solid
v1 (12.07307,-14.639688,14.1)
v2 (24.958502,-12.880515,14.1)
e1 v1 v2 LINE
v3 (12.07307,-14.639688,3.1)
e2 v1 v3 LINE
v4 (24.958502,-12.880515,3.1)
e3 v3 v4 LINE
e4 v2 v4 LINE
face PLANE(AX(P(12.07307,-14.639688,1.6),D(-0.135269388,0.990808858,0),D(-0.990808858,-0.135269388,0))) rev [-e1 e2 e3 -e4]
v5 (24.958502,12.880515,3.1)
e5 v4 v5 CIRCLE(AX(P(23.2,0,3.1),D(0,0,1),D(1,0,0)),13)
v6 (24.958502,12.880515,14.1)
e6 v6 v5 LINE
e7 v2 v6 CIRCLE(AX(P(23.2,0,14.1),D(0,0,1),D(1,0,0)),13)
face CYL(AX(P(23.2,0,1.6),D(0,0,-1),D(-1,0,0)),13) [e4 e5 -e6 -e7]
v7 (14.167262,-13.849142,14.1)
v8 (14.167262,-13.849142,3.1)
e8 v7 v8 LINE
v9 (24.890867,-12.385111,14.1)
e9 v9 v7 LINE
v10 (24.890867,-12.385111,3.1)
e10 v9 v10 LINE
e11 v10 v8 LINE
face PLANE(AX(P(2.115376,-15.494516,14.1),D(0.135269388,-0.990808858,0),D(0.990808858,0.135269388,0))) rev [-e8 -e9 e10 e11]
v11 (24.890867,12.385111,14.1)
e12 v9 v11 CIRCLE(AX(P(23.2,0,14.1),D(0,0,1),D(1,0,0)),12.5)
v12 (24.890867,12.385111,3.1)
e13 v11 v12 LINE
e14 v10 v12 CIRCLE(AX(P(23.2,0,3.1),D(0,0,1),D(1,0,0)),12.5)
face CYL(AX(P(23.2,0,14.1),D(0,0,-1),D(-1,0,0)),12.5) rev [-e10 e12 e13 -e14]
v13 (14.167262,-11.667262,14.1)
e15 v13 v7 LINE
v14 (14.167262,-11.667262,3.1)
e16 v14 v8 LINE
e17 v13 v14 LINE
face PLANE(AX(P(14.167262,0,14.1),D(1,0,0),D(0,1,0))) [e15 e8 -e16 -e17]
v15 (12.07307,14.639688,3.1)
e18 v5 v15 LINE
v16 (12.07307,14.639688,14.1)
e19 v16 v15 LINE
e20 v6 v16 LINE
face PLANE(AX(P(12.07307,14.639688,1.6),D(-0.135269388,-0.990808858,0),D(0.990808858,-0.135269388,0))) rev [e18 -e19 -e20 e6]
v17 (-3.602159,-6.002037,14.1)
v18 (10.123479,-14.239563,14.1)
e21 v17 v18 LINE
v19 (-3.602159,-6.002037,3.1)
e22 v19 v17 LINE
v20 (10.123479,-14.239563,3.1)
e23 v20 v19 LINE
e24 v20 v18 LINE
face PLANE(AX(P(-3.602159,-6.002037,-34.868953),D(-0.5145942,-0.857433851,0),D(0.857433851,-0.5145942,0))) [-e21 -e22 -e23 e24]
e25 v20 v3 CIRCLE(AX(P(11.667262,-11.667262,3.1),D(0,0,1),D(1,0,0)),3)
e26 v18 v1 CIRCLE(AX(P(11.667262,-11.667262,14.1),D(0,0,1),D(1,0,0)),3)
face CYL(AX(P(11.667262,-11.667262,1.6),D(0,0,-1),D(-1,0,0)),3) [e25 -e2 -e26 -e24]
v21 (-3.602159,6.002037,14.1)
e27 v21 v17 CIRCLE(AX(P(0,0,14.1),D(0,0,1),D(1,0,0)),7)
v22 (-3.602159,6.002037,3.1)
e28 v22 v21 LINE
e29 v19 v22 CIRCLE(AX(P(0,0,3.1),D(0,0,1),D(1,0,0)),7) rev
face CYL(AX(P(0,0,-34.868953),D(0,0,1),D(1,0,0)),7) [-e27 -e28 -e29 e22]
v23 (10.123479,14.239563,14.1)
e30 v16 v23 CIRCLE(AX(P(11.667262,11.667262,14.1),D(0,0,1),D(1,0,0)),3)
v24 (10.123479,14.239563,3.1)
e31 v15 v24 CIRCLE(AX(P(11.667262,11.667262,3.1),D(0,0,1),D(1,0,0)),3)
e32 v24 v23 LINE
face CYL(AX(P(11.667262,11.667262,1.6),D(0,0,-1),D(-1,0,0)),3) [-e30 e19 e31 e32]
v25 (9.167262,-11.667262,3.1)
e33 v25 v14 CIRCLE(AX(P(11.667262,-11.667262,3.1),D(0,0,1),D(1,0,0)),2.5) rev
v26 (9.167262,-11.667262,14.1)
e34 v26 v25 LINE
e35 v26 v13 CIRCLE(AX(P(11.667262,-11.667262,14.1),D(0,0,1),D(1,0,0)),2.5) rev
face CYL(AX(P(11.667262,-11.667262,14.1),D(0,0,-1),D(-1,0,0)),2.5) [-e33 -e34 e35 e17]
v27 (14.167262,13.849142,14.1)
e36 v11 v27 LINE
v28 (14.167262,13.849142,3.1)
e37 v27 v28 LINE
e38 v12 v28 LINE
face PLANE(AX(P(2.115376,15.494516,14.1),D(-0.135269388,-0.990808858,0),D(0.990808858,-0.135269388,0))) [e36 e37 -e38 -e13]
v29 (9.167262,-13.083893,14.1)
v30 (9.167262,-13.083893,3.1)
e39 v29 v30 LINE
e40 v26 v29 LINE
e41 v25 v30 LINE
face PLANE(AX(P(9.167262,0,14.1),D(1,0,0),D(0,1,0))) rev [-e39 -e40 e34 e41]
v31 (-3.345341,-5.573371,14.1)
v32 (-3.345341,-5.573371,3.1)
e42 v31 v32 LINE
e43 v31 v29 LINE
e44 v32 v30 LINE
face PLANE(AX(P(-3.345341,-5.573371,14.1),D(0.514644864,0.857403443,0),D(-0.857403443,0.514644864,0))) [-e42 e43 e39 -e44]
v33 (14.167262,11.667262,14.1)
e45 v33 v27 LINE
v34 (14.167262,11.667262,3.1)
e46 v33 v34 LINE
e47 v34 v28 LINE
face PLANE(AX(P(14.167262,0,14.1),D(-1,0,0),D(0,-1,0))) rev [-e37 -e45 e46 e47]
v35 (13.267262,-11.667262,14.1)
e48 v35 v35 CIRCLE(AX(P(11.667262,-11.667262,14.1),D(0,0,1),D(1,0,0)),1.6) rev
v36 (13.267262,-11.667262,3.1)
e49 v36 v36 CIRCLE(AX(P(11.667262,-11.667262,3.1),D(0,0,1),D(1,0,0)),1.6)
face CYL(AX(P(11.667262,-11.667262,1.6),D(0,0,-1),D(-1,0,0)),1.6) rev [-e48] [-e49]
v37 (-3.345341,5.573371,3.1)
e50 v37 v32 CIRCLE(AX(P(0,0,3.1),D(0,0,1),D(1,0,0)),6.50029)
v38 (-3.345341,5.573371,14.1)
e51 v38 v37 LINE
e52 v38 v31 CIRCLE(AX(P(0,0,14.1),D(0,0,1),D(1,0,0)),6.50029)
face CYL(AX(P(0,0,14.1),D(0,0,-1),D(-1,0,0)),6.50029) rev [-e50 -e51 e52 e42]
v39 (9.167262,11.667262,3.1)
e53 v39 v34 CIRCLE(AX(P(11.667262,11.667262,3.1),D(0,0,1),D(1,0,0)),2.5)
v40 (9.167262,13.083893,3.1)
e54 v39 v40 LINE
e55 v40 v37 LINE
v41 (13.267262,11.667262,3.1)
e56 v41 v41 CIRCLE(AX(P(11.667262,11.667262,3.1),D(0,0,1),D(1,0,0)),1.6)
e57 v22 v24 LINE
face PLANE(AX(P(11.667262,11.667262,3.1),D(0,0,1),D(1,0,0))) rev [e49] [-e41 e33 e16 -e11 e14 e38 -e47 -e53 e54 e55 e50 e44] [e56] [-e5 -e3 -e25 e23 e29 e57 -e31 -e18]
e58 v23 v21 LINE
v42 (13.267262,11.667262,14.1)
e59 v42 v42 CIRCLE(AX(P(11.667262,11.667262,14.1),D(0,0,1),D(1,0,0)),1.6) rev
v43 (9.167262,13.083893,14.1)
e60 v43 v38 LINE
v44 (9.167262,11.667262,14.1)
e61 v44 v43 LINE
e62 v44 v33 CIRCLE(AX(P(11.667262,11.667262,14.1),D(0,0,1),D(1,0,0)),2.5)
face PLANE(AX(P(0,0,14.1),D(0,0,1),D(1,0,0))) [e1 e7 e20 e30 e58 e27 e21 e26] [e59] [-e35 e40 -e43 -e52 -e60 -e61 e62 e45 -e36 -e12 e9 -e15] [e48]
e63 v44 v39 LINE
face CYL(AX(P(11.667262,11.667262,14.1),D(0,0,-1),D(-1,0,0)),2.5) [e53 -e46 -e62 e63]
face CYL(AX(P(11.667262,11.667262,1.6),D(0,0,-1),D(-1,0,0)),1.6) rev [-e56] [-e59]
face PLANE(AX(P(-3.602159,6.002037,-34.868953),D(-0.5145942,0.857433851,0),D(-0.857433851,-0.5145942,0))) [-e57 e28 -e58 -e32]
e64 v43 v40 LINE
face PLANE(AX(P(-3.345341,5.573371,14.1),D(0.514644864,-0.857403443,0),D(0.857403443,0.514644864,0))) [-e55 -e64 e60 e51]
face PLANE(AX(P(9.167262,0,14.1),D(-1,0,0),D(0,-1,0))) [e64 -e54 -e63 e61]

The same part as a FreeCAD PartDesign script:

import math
import FreeCAD as App
import Part
import Sketcher
from FreeCAD import Vector

doc = App.newDocument("Part")
body = doc.addObject("PartDesign::Body", "Body")

# Sketch on XY plane
sketch1 = body.newObject("Sketcher::SketchObject", "Sketch")
sketch1.AttachmentSupport = (doc.getObject("XY_Plane"), [""])
sketch1.MapMode = "FlatFace"
sketch1.addGeometry([
    Part.LineSegment(Vector(24.96, 12.88, 0), Vector(12.07, 14.64, 0)),  # 0
    Part.ArcOfCircle(Part.Circle(Vector(11.67, 11.67, 0), Vector(0, 0, 1), 3), math.radians(82.23), math.radians(90)),  # 1
    Part.LineSegment(Vector(11.67, 14.67, 0), Vector(-11.67, 14.67, 0)),  # 2
    Part.ArcOfCircle(Part.Circle(Vector(-11.67, 11.67, 0), Vector(0, 0, 1), 3), math.radians(90), math.radians(155)),  # 3
    Part.LineSegment(Vector(-14.4, 12.91, 0), Vector(-19.73, 1.25, 0)),  # 4
    Part.ArcOfCircle(Part.Circle(Vector(-17, 0, 0), Vector(0, 0, 1), 3), math.radians(155), math.radians(236)),  # 5
    Part.LineSegment(Vector(-18.7, -2.47, 0), Vector(-1.7, -14.14, 0)),  # 6
    Part.ArcOfCircle(Part.Circle(Vector(0, -11.67, 0), Vector(0, 0, 1), 3), math.radians(-124), math.radians(-90)),  # 7
    Part.LineSegment(Vector(0, -14.67, 0), Vector(11.67, -14.67, 0)),  # 8
    Part.ArcOfCircle(Part.Circle(Vector(11.67, -11.67, 0), Vector(0, 0, 1), 3), math.radians(-90), math.radians(-82.23)),  # 9
    Part.LineSegment(Vector(12.07, -14.64, 0), Vector(24.96, -12.88, 0)),  # 10
    Part.ArcOfCircle(Part.Circle(Vector(23.2, 0, 0), Vector(0, 0, 1), 13), math.radians(-82), math.radians(82)),  # 11
    Part.Circle(Vector(11.67, -11.67, 0), Vector(0, 0, 1), 1.6),  # 12
    Part.Circle(Vector(0, -11.67, 0), Vector(0, 0, 1), 1.6),  # 13
    Part.Circle(Vector(23.2, 0, 0), Vector(0, 0, 1), 4.5),  # 14
    Part.Circle(Vector(8.6, 0, 0), Vector(0, 0, 1), 3),  # 15
    Part.Circle(Vector(11.67, 11.67, 0), Vector(0, 0, 1), 1.6),  # 16
    Part.Circle(Vector(0, 0, 0), Vector(0, 0, 1), 3),  # 17
    Part.Circle(Vector(-17, 0, 0), Vector(0, 0, 1), 1.6),  # 18
    Part.Circle(Vector(0, 11.67, 0), Vector(0, 0, 1), 1.6),  # 19
    Part.Circle(Vector(-11.67, 11.67, 0), Vector(0, 0, 1), 1.6),  # 20
], False)
sketch1.addConstraint([
    Sketcher.Constraint("Tangent", 0, 2, 1, 1),
    Sketcher.Constraint("Tangent", 1, 2, 2, 1),
    Sketcher.Constraint("Tangent", 2, 2, 3, 1),
    Sketcher.Constraint("Tangent", 3, 2, 4, 1),
    Sketcher.Constraint("Tangent", 4, 2, 5, 1),
    Sketcher.Constraint("Tangent", 5, 2, 6, 1),
    Sketcher.Constraint("Tangent", 6, 2, 7, 1),
    Sketcher.Constraint("Tangent", 7, 2, 8, 1),
    Sketcher.Constraint("Tangent", 8, 2, 9, 1),
    Sketcher.Constraint("Tangent", 9, 2, 10, 1),
    Sketcher.Constraint("Tangent", 10, 2, 11, 1),
    Sketcher.Constraint("Tangent", 11, 2, 0, 1),
    Sketcher.Constraint("Horizontal", 2),
    Sketcher.Constraint("Horizontal", 8),
    Sketcher.Constraint("Coincident", 17, 3, -1, 1),
    Sketcher.Constraint("Coincident", 12, 3, 9, 3),
    Sketcher.Constraint("Coincident", 13, 3, 7, 3),
    Sketcher.Constraint("Coincident", 14, 3, 11, 3),
    Sketcher.Constraint("Coincident", 16, 3, 1, 3),
    Sketcher.Constraint("Coincident", 18, 3, 5, 3),
    Sketcher.Constraint("Coincident", 20, 3, 3, 3),
    Sketcher.Constraint("Equal", 1, 3),
    Sketcher.Constraint("Equal", 3, 5),
    Sketcher.Constraint("Equal", 5, 7),
    Sketcher.Constraint("Equal", 7, 9),
    Sketcher.Constraint("Equal", 12, 13),
    Sketcher.Constraint("Equal", 9, 15),
    Sketcher.Constraint("Equal", 13, 16),
    Sketcher.Constraint("Equal", 15, 17),
    Sketcher.Constraint("Equal", 16, 18),
    Sketcher.Constraint("Equal", 18, 19),
    Sketcher.Constraint("Equal", 19, 20),
    Sketcher.Constraint("Symmetric", 3, 3, 9, 3, -1, 1),
    Sketcher.Constraint("Symmetric", 7, 3, 19, 3, -1, 1),
    Sketcher.Constraint("Symmetric", 0, 2, 9, 2, -1),
    Sketcher.Constraint("PointOnObject", 5, 3, -1),
    Sketcher.Constraint("PointOnObject", 7, 3, -2),
    Sketcher.Constraint("PointOnObject", 15, 3, -1),
    Sketcher.Constraint("Diameter", 14, 9.0),
    Sketcher.Constraint("Diameter", 15, 6.0),
    Sketcher.Constraint("Radius", 11, 13.0),
    Sketcher.Constraint("Diameter", 12, 3.2),
    Sketcher.Constraint("DistanceX", 5, 3, -1, 1, 17.0),
    Sketcher.Constraint("DistanceX", -1, 1, 11, 3, 23.2),
    Sketcher.Constraint("DistanceX", -1, 1, 15, 3, 8.6),
    Sketcher.Constraint("DistanceX", 8, 1, 8, 2, 11.667262),
    Sketcher.Constraint("DistanceX", 4, 2, -1, 1, 19.7285),
])
pad1 = body.newObject("PartDesign::Pad", "Pad")
pad1.Profile = sketch1
pad1.Length = 1.6

# Sketch on XY plane
sketch2 = body.newObject("Sketcher::SketchObject", "Sketch001")
sketch2.AttachmentSupport = (doc.getObject("XY_Plane"), [""])
sketch2.MapMode = "FlatFace"
sketch2.AttachmentOffset = App.Placement(Vector(0, 0, 1.6), App.Rotation())
sketch2.addGeometry([
    Part.LineSegment(Vector(25, 12.9, 0), Vector(12.1, 14.6, 0)),  # 0
    Part.ArcOfCircle(Part.Circle(Vector(11.7, 11.7, 0), Vector(0, 0, 1), 3), math.radians(82), math.radians(128)),  # 1
    Part.LineSegment(Vector(9.8, 14, 0), Vector(-3.1, 3.9, 0)),  # 2
    Part.ArcOfCircle(Part.Circle(Vector(0, 0, 0), Vector(0, 0, 1), 5), math.radians(128), math.radians(232)),  # 3
    Part.LineSegment(Vector(-3.1, -3.9, 0), Vector(9.8, -14, 0)),  # 4
    Part.ArcOfCircle(Part.Circle(Vector(11.7, -11.7, 0), Vector(0, 0, 1), 3), math.radians(-128), math.radians(-82)),  # 5
    Part.LineSegment(Vector(12.1, -14.6, 0), Vector(25, -12.9, 0)),  # 6
    Part.ArcOfCircle(Part.Circle(Vector(23.2, 0, 0), Vector(0, 0, 1), 13), math.radians(-82), math.radians(82)),  # 7
    Part.Circle(Vector(11.7, -11.7, 0), Vector(0, 0, 1), 1.6),  # 8
    Part.Circle(Vector(23.2, 0, 0), Vector(0, 0, 1), 4.5),  # 9
    Part.Circle(Vector(8.6, 0, 0), Vector(0, 0, 1), 3),  # 10
    Part.Circle(Vector(0, 0, 0), Vector(0, 0, 1), 3),  # 11
    Part.Circle(Vector(11.7, 11.7, 0), Vector(0, 0, 1), 1.6),  # 12
], False)
sketch2.addConstraint([
    Sketcher.Constraint("Tangent", 0, 2, 1, 1),
    Sketcher.Constraint("Tangent", 1, 2, 2, 1),
    Sketcher.Constraint("Tangent", 2, 2, 3, 1),
    Sketcher.Constraint("Tangent", 3, 2, 4, 1),
    Sketcher.Constraint("Tangent", 4, 2, 5, 1),
    Sketcher.Constraint("Tangent", 5, 2, 6, 1),
    Sketcher.Constraint("Tangent", 6, 2, 7, 1),
    Sketcher.Constraint("Tangent", 7, 2, 0, 1),
    Sketcher.Constraint("Coincident", 3, 3, -1, 1),
    Sketcher.Constraint("Coincident", 11, 3, -1, 1),
    Sketcher.Constraint("Coincident", 8, 3, 5, 3),
    Sketcher.Constraint("Coincident", 9, 3, 7, 3),
    Sketcher.Constraint("Coincident", 12, 3, 1, 3),
    Sketcher.Constraint("Equal", 1, 5),
    Sketcher.Constraint("Equal", 5, 10),
    Sketcher.Constraint("Equal", 10, 11),
    Sketcher.Constraint("Equal", 8, 12),
    Sketcher.Constraint("Symmetric", 1, 3, 5, 3, -1),
    Sketcher.Constraint("PointOnObject", 7, 3, -1),
    Sketcher.Constraint("PointOnObject", 10, 3, -1),
    Sketcher.Constraint("Diameter", 9, 9.0),
    Sketcher.Constraint("Diameter", 10, 6.0),
    Sketcher.Constraint("Radius", 3, 5.0),
    Sketcher.Constraint("Radius", 7, 13.0),
    Sketcher.Constraint("Diameter", 8, 3.2),
    Sketcher.Constraint("DistanceX", -1, 1, 7, 3, 23.2),
    Sketcher.Constraint("DistanceX", -1, 1, 10, 3, 8.6),
    Sketcher.Constraint("Distance", 2, 16.378339),
    Sketcher.Constraint("DistanceX", -1, 1, 1, 3, 11.667262),
])
pad2 = body.newObject("PartDesign::Pad", "Pad001")
pad2.Profile = sketch2
pad2.Length = 1.5

# Sketch on XY plane
sketch3 = body.newObject("Sketcher::SketchObject", "Sketch002")
sketch3.AttachmentSupport = (doc.getObject("XY_Plane"), [""])
sketch3.MapMode = "FlatFace"
sketch3.addGeometry(Part.Circle(Vector(0, 0, 0), Vector(0, 0, 1), 63), False)
sketch3.addConstraint([
    Sketcher.Constraint("Coincident", 0, 3, -1, 1),
    Sketcher.Constraint("Diameter", 0, 126.413125),
])
pocket1 = body.newObject("PartDesign::Pocket", "Pocket")
pocket1.Profile = sketch3
pocket1.Length = 1.6
pocket1.Reversed = True

# Sketch on XY plane
sketch4 = body.newObject("Sketcher::SketchObject", "Sketch003")
sketch4.AttachmentSupport = (doc.getObject("XY_Plane"), [""])
sketch4.MapMode = "FlatFace"
sketch4.AttachmentOffset = App.Placement(Vector(0, 0, 3.1), App.Rotation())
sketch4.addGeometry([
    Part.LineSegment(Vector(10.1, 14.2, 0), Vector(-3.6, 6, 0)),  # 0
    Part.ArcOfCircle(Part.Circle(Vector(0, 0, 0), Vector(0, 0, 1), 7), math.radians(121), math.radians(239)),  # 1
    Part.LineSegment(Vector(-3.6, -6, 0), Vector(10.1, -14.2, 0)),  # 2
    Part.ArcOfCircle(Part.Circle(Vector(11.7, -11.7, 0), Vector(0, 0, 1), 3), math.radians(-121), math.radians(0)),  # 3
    Part.LineSegment(Vector(14.7, -11.7, 0), Vector(14.7, 11.7, 0)),  # 4
    Part.ArcOfCircle(Part.Circle(Vector(11.7, 11.7, 0), Vector(0, 0, 1), 3), math.radians(0), math.radians(121)),  # 5
    Part.Circle(Vector(11.7, -11.7, 0), Vector(0, 0, 1), 1.6),  # 6
    Part.Circle(Vector(8.6, 0, 0), Vector(0, 0, 1), 3),  # 7
    Part.Circle(Vector(11.7, 11.7, 0), Vector(0, 0, 1), 1.6),  # 8
    Part.Circle(Vector(0, 0, 0), Vector(0, 0, 1), 3),  # 9
], False)
sketch4.addConstraint([
    Sketcher.Constraint("Tangent", 0, 2, 1, 1),
    Sketcher.Constraint("Tangent", 1, 2, 2, 1),
    Sketcher.Constraint("Tangent", 2, 2, 3, 1),
    Sketcher.Constraint("Tangent", 3, 2, 4, 1),
    Sketcher.Constraint("Tangent", 4, 2, 5, 1),
    Sketcher.Constraint("Tangent", 5, 2, 0, 1),
    Sketcher.Constraint("Vertical", 4),
    Sketcher.Constraint("Coincident", 1, 3, -1, 1),
    Sketcher.Constraint("Coincident", 9, 3, -1, 1),
    Sketcher.Constraint("Coincident", 6, 3, 3, 3),
    Sketcher.Constraint("Coincident", 8, 3, 5, 3),
    Sketcher.Constraint("Equal", 3, 5),
    Sketcher.Constraint("Equal", 5, 7),
    Sketcher.Constraint("Equal", 6, 8),
    Sketcher.Constraint("Equal", 7, 9),
    Sketcher.Constraint("PointOnObject", 7, 3, -1),
    Sketcher.Constraint("Vertical", 0, 2, 1, 2),
    Sketcher.Constraint("Diameter", 7, 6.0),
    Sketcher.Constraint("Radius", 1, 7.0),
    Sketcher.Constraint("Diameter", 6, 3.2),
    Sketcher.Constraint("DistanceX", -1, 1, 7, 3, 8.6),
    Sketcher.Constraint("DistanceY", 2, 2, 6, 3, 2.572302),
    Sketcher.Constraint("Distance", 0, 16.007811),
])
pad3 = body.newObject("PartDesign::Pad", "Pad002")
pad3.Profile = sketch4
pad3.Length = 1.5
pad3.Reversed = True

# Sketch on XY plane
sketch5 = body.newObject("Sketcher::SketchObject", "Sketch004")
sketch5.AttachmentSupport = (doc.getObject("XY_Plane"), [""])
sketch5.MapMode = "FlatFace"
sketch5.AttachmentOffset = App.Placement(Vector(0, 0, 3.1), App.Rotation())
sketch5.addGeometry([
    Part.LineSegment(Vector(10.1, 14.2, 0), Vector(-3.6, 6, 0)),  # 0
    Part.ArcOfCircle(Part.Circle(Vector(0, 0, 0), Vector(0, 0, 1), 7), math.radians(121), math.radians(239)),  # 1
    Part.LineSegment(Vector(-3.6, -6, 0), Vector(10.1, -14.2, 0)),  # 2
    Part.ArcOfCircle(Part.Circle(Vector(11.7, -11.7, 0), Vector(0, 0, 1), 3), math.radians(-121), math.radians(-82)),  # 3
    Part.LineSegment(Vector(12.1, -14.6, 0), Vector(25, -12.9, 0)),  # 4
    Part.ArcOfCircle(Part.Circle(Vector(23.2, 0, 0), Vector(0, 0, 1), 13), math.radians(-82), math.radians(82)),  # 5
    Part.LineSegment(Vector(25, 12.9, 0), Vector(12.1, 14.6, 0)),  # 6
    Part.ArcOfCircle(Part.Circle(Vector(11.7, 11.7, 0), Vector(0, 0, 1), 3), math.radians(82), math.radians(121)),  # 7
    Part.Circle(Vector(11.7, -11.7, 0), Vector(0, 0, 1), 1.6),  # 8
    Part.Circle(Vector(11.7, 11.7, 0), Vector(0, 0, 1), 1.6),  # 9
    Part.ArcOfCircle(Part.Circle(Vector(0, 0, 0), Vector(0, 0, 1), 6.5), math.radians(121), math.radians(239)),  # 10
    Part.LineSegment(Vector(-3.3, 5.6, 0), Vector(3.5, 9.7, 0)),  # 11
    Part.LineSegment(Vector(3.5, 9.7, 0), Vector(9.2, 13.1, 0)),  # 12
    Part.LineSegment(Vector(9.2, 13.1, 0), Vector(9.2, 11.7, 0)),  # 13
    Part.ArcOfCircle(Part.Circle(Vector(11.7, 11.7, 0), Vector(0, 0, 1), 2.5), math.radians(180), math.radians(360)),  # 14
    Part.LineSegment(Vector(14.2, 11.7, 0), Vector(14.2, 13.8, 0)),  # 15
    Part.LineSegment(Vector(14.2, 13.8, 0), Vector(18.3, 13.3, 0)),  # 16
    Part.LineSegment(Vector(18.3, 13.3, 0), Vector(24.9, 12.4, 0)),  # 17
    Part.ArcOfCircle(Part.Circle(Vector(23.2, 0, 0), Vector(0, 0, 1), 12.5), math.radians(-82), math.radians(82)),  # 18
    Part.LineSegment(Vector(24.9, -12.4, 0), Vector(18.3, -13.3, 0)),  # 19
    Part.LineSegment(Vector(18.3, -13.3, 0), Vector(14.2, -13.8, 0)),  # 20
    Part.LineSegment(Vector(14.2, -13.8, 0), Vector(14.2, -11.7, 0)),  # 21
    Part.ArcOfCircle(Part.Circle(Vector(11.7, -11.7, 0), Vector(0, 0, 1), 2.5), math.radians(0), math.radians(180)),  # 22
    Part.LineSegment(Vector(9.2, -11.7, 0), Vector(9.2, -13.1, 0)),  # 23
    Part.LineSegment(Vector(9.2, -13.1, 0), Vector(3.5, -9.7, 0)),  # 24
    Part.LineSegment(Vector(3.5, -9.7, 0), Vector(-3.3, -5.6, 0)),  # 25
], False)
sketch5.addConstraint([
    Sketcher.Constraint("Tangent", 0, 2, 1, 1),
    Sketcher.Constraint("Tangent", 1, 2, 2, 1),
    Sketcher.Constraint("Tangent", 2, 2, 3, 1),
    Sketcher.Constraint("Tangent", 3, 2, 4, 1),
    Sketcher.Constraint("Tangent", 4, 2, 5, 1),
    Sketcher.Constraint("Tangent", 5, 2, 6, 1),
    Sketcher.Constraint("Tangent", 6, 2, 7, 1),
    Sketcher.Constraint("Tangent", 7, 2, 0, 1),
    Sketcher.Constraint("Tangent", 10, 1, 11, 1),
    Sketcher.Constraint("Coincident", 11, 2, 12, 1),
    Sketcher.Constraint("Coincident", 12, 2, 13, 1),
    Sketcher.Constraint("Tangent", 13, 2, 14, 1),
    Sketcher.Constraint("Tangent", 14, 2, 15, 1),
    Sketcher.Constraint("Coincident", 15, 2, 16, 1),
    Sketcher.Constraint("Coincident", 16, 2, 17, 1),
    Sketcher.Constraint("Tangent", 17, 2, 18, 2),
    Sketcher.Constraint("Tangent", 18, 1, 19, 1),
    Sketcher.Constraint("Coincident", 19, 2, 20, 1),
    Sketcher.Constraint("Coincident", 20, 2, 21, 1),
    Sketcher.Constraint("Tangent", 21, 2, 22, 1),
    Sketcher.Constraint("Tangent", 22, 2, 23, 1),
    Sketcher.Constraint("Coincident", 23, 2, 24, 1),
    Sketcher.Constraint("Coincident", 24, 2, 25, 1),
    Sketcher.Constraint("Tangent", 25, 2, 10, 2),
    Sketcher.Constraint("Vertical", 13),
    Sketcher.Constraint("Vertical", 15),
    Sketcher.Constraint("Vertical", 21),
    Sketcher.Constraint("Vertical", 23),
    Sketcher.Constraint("Coincident", 1, 3, -1, 1),
    Sketcher.Constraint("Coincident", 10, 3, -1, 1),
    Sketcher.Constraint("Coincident", 8, 3, 3, 3),
    Sketcher.Constraint("Coincident", 9, 3, 7, 3),
    Sketcher.Constraint("Coincident", 14, 3, 7, 3),
    Sketcher.Constraint("Coincident", 18, 3, 5, 3),
    Sketcher.Constraint("Coincident", 22, 3, 3, 3),
    Sketcher.Constraint("Equal", 3, 7),
    Sketcher.Constraint("Equal", 8, 9),
    Sketcher.Constraint("Equal", 14, 22),
    Sketcher.Constraint("Symmetric", 3, 3, 7, 3, -1),
    Sketcher.Constraint("Symmetric", 17, 2, 18, 1, -1),
    Sketcher.Constraint("Symmetric", 11, 2, 24, 2, -1),
    Sketcher.Constraint("Parallel", 11, 12),
    Sketcher.Constraint("Parallel", 6, 16),
    Sketcher.Constraint("Parallel", 16, 17),
    Sketcher.Constraint("Parallel", 19, 20),
    Sketcher.Constraint("Parallel", 24, 25),
    Sketcher.Constraint("Vertical", 16, 2, 19, 2),
    Sketcher.Constraint("Radius", 1, 7.0),
    Sketcher.Constraint("Radius", 3, 3.0),
    Sketcher.Constraint("Radius", 5, 13.0),
    Sketcher.Constraint("Diameter", 8, 3.2),
    Sketcher.Constraint("Radius", 14, 2.5),
    Sketcher.Constraint("Radius", 18, 12.5),
    Sketcher.Constraint("DistanceX", -1, 1, 5, 3, 23.2),
    Sketcher.Constraint("Radius", 10, 6.50029),
    Sketcher.Constraint("DistanceY", 13, 2, 13, 1, 1.416631),
    Sketcher.Constraint("DistanceY", 15, 1, 15, 2, 2.181881),
    Sketcher.Constraint("DistanceY", 2, 2, 8, 3, 2.572302),
    Sketcher.Constraint("DistanceY", 0, 2, 11, 2, 3.690701),
    Sketcher.Constraint("DistanceX", -1, 1, 16, 2, 18.333589),
])
pad4 = body.newObject("PartDesign::Pad", "Pad003")
pad4.Profile = sketch5
pad4.Length = 11

# Sketch on XY plane
sketch6 = body.newObject("Sketcher::SketchObject", "Sketch005")
sketch6.AttachmentSupport = (doc.getObject("XY_Plane"), [""])
sketch6.MapMode = "FlatFace"
sketch6.AttachmentOffset = App.Placement(Vector(0, 0, 1.6), App.Rotation())
sketch6.addGeometry(Part.Circle(Vector(0, 0, 0), Vector(0, 0, 1), 50), False)
sketch6.addConstraint([
    Sketcher.Constraint("Coincident", 0, 3, -1, 1),
    Sketcher.Constraint("Diameter", 0, 99.028861),
])
pocket2 = body.newObject("PartDesign::Pocket", "Pocket001")
pocket2.Profile = sketch6
pocket2.Length = 1.5
pocket2.Reversed = True

doc.recompute()
